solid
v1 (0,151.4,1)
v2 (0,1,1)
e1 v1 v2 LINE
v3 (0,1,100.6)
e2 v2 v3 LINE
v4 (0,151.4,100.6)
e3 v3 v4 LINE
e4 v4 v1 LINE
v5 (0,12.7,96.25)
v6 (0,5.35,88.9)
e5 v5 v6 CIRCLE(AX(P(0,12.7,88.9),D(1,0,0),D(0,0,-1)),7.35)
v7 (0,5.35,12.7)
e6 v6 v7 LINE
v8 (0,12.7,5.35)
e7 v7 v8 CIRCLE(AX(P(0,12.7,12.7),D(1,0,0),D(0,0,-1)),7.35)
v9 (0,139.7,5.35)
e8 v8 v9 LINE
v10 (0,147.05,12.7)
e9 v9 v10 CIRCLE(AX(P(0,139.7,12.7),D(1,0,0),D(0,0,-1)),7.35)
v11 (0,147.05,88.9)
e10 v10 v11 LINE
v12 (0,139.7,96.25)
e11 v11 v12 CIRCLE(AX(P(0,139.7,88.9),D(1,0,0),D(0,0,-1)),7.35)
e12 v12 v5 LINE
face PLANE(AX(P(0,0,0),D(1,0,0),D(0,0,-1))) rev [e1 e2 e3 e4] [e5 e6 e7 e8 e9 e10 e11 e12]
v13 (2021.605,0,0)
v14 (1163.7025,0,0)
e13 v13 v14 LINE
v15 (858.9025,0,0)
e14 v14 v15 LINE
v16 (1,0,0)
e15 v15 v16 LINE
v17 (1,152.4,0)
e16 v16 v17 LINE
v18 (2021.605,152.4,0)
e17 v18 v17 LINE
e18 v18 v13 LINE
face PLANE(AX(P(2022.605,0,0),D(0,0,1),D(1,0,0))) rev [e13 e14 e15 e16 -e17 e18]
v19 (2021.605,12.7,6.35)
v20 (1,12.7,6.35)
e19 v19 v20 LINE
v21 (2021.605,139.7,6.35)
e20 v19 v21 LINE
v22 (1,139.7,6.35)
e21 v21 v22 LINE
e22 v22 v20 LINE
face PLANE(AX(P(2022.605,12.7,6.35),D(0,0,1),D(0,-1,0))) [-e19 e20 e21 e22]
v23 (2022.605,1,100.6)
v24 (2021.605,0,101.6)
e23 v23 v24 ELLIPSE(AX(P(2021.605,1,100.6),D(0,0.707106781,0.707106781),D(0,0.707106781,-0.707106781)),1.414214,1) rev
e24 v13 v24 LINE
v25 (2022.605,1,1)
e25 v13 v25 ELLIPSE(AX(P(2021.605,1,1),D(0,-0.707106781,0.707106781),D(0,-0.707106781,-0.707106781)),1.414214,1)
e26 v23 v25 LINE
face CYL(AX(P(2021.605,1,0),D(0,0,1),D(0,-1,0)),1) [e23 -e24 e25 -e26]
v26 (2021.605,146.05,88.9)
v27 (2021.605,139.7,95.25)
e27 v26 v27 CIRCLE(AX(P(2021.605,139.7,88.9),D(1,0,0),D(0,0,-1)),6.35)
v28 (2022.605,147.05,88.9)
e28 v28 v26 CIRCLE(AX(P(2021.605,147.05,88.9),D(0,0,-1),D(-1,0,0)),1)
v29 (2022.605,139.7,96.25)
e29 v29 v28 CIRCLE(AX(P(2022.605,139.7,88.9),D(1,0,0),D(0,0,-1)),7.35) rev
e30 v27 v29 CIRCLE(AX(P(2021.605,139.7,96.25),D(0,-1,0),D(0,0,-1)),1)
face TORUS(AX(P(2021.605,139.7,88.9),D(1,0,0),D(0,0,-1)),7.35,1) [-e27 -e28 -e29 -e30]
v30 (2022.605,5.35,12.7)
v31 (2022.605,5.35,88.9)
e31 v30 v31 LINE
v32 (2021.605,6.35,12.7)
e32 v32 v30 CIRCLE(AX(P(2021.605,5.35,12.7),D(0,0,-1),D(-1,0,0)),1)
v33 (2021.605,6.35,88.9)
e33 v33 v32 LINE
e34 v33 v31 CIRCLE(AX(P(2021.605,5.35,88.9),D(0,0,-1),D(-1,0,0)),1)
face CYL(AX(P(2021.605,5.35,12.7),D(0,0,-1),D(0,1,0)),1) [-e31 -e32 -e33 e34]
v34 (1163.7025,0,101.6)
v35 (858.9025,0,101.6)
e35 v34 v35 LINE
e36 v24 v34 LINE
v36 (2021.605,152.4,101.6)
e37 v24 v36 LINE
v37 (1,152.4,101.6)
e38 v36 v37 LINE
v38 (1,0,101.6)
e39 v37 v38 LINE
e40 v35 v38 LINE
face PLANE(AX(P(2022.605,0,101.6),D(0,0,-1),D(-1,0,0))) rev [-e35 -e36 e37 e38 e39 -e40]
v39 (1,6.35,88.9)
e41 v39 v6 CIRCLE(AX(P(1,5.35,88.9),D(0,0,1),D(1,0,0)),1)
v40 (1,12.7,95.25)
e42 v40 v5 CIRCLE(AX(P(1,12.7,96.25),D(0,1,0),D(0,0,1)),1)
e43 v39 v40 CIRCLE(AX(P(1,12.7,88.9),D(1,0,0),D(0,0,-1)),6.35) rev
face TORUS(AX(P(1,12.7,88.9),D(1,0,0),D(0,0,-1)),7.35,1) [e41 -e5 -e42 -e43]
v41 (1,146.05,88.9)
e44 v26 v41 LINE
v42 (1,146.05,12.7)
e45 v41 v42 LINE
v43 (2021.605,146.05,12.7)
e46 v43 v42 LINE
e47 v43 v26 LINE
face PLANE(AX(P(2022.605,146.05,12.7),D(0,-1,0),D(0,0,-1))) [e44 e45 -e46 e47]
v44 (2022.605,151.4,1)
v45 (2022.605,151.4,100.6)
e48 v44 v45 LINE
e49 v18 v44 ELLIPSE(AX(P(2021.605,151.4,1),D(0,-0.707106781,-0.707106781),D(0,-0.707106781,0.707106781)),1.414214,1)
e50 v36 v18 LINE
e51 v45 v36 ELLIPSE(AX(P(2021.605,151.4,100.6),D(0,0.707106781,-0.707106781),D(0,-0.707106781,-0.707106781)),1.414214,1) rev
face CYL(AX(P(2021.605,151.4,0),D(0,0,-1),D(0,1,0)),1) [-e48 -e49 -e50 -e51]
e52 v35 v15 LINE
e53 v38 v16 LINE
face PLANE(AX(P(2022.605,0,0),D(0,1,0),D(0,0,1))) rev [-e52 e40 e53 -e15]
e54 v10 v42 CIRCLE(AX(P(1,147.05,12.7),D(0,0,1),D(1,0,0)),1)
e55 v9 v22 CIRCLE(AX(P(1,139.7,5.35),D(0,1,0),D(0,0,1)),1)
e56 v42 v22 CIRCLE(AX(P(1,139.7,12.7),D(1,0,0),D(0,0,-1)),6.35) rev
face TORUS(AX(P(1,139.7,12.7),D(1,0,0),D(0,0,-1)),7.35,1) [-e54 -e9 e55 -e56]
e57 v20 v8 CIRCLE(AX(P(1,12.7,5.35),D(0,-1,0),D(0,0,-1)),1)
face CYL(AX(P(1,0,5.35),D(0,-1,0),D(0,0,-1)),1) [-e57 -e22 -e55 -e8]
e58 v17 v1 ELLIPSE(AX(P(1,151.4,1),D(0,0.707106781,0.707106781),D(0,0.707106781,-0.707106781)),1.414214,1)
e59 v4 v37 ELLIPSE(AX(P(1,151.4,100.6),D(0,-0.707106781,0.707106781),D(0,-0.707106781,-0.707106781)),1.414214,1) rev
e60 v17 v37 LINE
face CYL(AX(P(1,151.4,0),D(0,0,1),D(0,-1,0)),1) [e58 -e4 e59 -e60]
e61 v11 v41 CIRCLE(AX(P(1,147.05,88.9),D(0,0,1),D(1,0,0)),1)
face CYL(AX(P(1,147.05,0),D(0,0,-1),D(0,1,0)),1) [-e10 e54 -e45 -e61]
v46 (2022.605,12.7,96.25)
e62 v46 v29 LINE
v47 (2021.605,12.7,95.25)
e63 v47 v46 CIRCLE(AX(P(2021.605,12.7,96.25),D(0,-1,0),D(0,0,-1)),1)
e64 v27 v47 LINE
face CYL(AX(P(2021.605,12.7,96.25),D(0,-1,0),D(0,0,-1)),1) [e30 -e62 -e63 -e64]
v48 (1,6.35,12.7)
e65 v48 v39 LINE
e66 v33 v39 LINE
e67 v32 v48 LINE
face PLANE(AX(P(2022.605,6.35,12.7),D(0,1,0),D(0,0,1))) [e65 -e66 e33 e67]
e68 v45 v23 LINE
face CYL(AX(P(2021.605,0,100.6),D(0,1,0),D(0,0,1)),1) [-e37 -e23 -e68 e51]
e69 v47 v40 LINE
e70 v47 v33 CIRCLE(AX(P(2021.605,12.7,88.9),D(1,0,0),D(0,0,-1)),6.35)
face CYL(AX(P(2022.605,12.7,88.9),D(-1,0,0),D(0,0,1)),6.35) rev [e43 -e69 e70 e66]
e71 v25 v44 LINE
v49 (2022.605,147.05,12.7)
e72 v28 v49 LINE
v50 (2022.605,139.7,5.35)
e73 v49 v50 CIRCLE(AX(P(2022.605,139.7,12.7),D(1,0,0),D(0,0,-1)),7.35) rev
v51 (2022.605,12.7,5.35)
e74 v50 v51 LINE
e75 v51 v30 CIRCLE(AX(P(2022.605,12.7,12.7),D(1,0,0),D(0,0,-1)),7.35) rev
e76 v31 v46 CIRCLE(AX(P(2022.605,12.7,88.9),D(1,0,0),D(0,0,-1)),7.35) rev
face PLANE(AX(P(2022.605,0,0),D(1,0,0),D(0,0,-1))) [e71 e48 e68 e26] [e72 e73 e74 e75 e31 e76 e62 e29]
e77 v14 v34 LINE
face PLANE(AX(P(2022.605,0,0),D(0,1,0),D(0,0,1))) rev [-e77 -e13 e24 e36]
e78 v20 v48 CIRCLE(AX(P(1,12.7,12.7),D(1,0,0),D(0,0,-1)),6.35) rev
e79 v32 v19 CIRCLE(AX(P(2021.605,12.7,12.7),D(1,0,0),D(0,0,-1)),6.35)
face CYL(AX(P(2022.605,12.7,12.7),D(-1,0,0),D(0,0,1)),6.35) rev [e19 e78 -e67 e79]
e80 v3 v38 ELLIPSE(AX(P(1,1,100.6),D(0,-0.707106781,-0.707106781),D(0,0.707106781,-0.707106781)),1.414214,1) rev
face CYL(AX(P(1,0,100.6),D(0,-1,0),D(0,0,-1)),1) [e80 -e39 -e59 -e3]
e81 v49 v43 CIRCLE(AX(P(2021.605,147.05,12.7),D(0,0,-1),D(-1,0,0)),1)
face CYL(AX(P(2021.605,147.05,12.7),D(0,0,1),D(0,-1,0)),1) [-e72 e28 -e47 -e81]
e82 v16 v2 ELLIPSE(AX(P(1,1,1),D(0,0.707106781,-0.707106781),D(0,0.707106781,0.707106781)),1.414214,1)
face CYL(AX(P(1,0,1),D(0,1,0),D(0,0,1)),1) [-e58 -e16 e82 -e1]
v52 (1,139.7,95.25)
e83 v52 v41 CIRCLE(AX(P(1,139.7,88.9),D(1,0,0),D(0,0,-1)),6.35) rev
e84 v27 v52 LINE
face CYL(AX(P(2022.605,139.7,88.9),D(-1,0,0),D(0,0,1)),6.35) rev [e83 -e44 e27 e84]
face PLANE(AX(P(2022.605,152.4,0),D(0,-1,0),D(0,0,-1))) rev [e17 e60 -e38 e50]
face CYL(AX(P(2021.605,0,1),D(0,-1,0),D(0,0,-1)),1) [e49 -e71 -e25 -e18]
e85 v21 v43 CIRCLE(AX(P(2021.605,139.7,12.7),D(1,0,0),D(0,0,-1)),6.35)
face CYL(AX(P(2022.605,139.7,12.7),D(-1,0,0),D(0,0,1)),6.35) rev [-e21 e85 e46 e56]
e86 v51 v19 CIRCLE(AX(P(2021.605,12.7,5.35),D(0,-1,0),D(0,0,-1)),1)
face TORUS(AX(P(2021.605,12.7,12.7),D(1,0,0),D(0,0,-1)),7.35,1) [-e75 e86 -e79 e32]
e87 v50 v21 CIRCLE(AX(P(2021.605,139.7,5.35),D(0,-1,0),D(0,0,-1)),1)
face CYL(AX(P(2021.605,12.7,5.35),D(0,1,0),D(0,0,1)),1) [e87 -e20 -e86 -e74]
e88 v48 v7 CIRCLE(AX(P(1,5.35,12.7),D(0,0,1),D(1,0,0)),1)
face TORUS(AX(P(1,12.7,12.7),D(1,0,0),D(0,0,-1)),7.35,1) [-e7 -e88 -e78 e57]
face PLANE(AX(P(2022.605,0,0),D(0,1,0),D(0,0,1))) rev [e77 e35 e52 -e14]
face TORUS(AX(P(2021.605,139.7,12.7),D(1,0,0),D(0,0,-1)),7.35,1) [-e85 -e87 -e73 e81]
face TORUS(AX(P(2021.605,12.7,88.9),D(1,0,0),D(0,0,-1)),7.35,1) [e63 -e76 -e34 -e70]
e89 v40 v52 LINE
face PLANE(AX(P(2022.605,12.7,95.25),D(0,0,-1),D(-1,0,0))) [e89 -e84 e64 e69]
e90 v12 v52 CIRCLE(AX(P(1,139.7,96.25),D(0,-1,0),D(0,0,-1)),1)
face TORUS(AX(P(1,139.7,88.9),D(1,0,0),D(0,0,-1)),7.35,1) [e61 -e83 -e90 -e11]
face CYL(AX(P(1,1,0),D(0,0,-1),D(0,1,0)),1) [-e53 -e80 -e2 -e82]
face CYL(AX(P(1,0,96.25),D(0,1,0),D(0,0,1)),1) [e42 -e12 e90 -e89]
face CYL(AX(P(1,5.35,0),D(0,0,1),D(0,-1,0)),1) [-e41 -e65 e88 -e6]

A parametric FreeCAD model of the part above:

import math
import FreeCAD as App
import Part
import Sketcher

V = App.Vector
Q = App.Units.Quantity


def edges_at(feature, points):
    """Names of the edges that pass closest to the given points."""
    edges = feature.Shape.Edges
    near = lambda p: min(range(len(edges)), key=lambda i: edges[i].distToShape(Part.Vertex(*p))[0])
    return sorted({f"Edge{near(p) + 1}" for p in points})


def add_polygon(sketch, points):
    """Adds a closed chain of lines whose ends are joined by coincident constraints."""
    first, n = sketch.GeometryCount, len(points)
    for a, b in zip(points, points[1:] + points[:1]):
        sketch.addGeometry(Part.LineSegment(App.Vector(*a, 0), App.Vector(*b, 0)), False)
    for i in range(n):
        sketch.addConstraint(Sketcher.Constraint("Coincident", first + i, 2, first + (i + 1) % n, 1))

doc = App.newDocument("Part")
body = doc.addObject("PartDesign::Body", "Body")

sketch1 = body.newObject("Sketcher::SketchObject", "Sketch")
sketch1.AttachmentSupport = (doc.getObject("YZ_Plane"), [""])
sketch1.MapMode = "FlatFace"
add_polygon(sketch1, [(152.4, 101.6), (0, 101.6), (0, 0), (152.4, 0)])
sketch1.addGeometry(Part.ArcOfCircle(Part.Circle(V(12.7, 88.9, 0), V(0, 0, 1), 6.35), math.radians(90), math.radians(180)), False)
sketch1.addGeometry(Part.LineSegment(V(12.7, 95.25, 0), V(139.7, 95.25, 0)), False)
sketch1.addGeometry(Part.ArcOfCircle(Part.Circle(V(139.7, 88.9, 0), V(0, 0, 1), 6.35), math.radians(0), math.radians(90)), False)
sketch1.addGeometry(Part.LineSegment(V(146.05, 88.9, 0), V(146.05, 12.7, 0)), False)
sketch1.addGeometry(Part.ArcOfCircle(Part.Circle(V(139.7, 12.7, 0), V(0, 0, 1), 6.35), math.radians(-90), math.radians(0)), False)
sketch1.addGeometry(Part.LineSegment(V(139.7, 6.35, 0), V(12.7, 6.35, 0)), False)
sketch1.addGeometry(Part.ArcOfCircle(Part.Circle(V(12.7, 12.7, 0), V(0, 0, 1), 6.35), math.radians(180), math.radians(270)), False)
sketch1.addGeometry(Part.LineSegment(V(6.35, 12.7, 0), V(6.35, 88.9, 0)), False)
sketch1.addConstraint([
    Sketcher.Constraint("Tangent", 4, 1, 5, 1),
    Sketcher.Constraint("Tangent", 5, 2, 6, 2),
    Sketcher.Constraint("Tangent", 6, 1, 7, 1),
    Sketcher.Constraint("Tangent", 7, 2, 8, 2),
    Sketcher.Constraint("Tangent", 8, 1, 9, 1),
    Sketcher.Constraint("Tangent", 9, 2, 10, 2),
    Sketcher.Constraint("Tangent", 10, 1, 11, 1),
    Sketcher.Constraint("Tangent", 11, 2, 4, 2),
    Sketcher.Constraint("Horizontal", 0),
    Sketcher.Constraint("Vertical", 1),
    Sketcher.Constraint("Horizontal", 2),
    Sketcher.Constraint("Vertical", 3),
    Sketcher.Constraint("Horizontal", 5),
    Sketcher.Constraint("Vertical", 7),
    Sketcher.Constraint("Horizontal", 9),
    Sketcher.Constraint("Vertical", 11),
    Sketcher.Constraint("Coincident", 1, 2, -1, 1),
    Sketcher.Constraint("Equal", 4, 6),
    Sketcher.Constraint("Equal", 6, 8),
    Sketcher.Constraint("Equal", 8, 10),
    Sketcher.Constraint("DistanceX", 0, 2, 0, 1, Q("6 in")),
    Sketcher.Constraint("DistanceX", 5, 1, 5, 2, Q("5 in")),
    Sketcher.Constraint("DistanceY", 1, 2, 1, 1, Q("4 in")),
    Sketcher.Constraint("DistanceY", 7, 2, 7, 1, Q("3 in")),
    Sketcher.Constraint("Radius", 4, Q("0.25 in")),
    Sketcher.Constraint("DistanceX", -1, 1, 4, 3, Q("0.5 in")),
    Sketcher.Constraint("DistanceY", -1, 1, 4, 3, Q("3.5 in")),
])
pad1 = body.newObject("PartDesign::Pad", "Pad")
pad1.Profile = sketch1
pad1.Length = 2022.605
doc.recompute()

fillet = body.newObject("PartDesign::Fillet", "Fillet")
fillet.Base = (pad1, edges_at(pad1, [
    (2022.605, 76.2, 101.6),
    (2022.605, 0, 50.8),
    (0, 8.21, 93.39),
    (0, 6.35, 50.8),
    (0, 8.21, 8.21),
    (0, 76.2, 6.35),
    (0, 144.19, 8.21),
    (0, 146.05, 50.8),
    (0, 144.19, 93.39),
    (0, 76.2, 95.25),
    (2022.605, 8.21, 93.39),
    (2022.605, 6.35, 50.8),
    (2022.605, 8.21, 8.21),
    (2022.605, 76.2, 6.35),
    (2022.605, 144.19, 8.21),
    (2022.605, 146.05, 50.8),
    (2022.605, 144.19, 93.39),
    (2022.605, 76.2, 95.25),
    (2022.605, 76.2, 0),
    (0, 0, 50.8),
    (0, 76.2, 101.6),
    (0, 152.4, 50.8),
    (0, 76.2, 0),
    (2022.605, 152.4, 50.8),
]))
fillet.Radius = 1

doc.recompute()
